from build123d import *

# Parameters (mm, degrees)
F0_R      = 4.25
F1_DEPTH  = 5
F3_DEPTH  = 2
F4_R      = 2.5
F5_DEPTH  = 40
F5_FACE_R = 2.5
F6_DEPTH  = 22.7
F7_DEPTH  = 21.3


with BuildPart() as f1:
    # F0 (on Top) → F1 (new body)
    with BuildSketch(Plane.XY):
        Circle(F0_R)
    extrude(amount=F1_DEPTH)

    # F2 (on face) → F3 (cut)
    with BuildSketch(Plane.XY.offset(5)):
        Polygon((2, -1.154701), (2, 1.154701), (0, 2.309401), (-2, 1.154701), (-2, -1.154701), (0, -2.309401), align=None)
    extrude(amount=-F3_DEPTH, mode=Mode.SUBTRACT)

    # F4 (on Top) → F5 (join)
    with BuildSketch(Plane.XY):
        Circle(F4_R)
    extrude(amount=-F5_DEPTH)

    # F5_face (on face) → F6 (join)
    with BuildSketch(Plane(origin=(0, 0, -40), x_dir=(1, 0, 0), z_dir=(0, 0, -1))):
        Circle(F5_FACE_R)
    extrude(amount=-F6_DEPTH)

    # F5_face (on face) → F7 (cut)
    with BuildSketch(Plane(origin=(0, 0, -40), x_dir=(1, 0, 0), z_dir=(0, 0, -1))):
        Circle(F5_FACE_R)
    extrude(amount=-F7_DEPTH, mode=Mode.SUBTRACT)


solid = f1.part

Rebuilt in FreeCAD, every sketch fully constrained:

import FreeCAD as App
import Part
import Sketcher

V = App.Vector
Q = App.Units.Quantity


def add_polygon(sketch, points):
    """Adds a closed chain of lines whose ends are joined by coincident constraints."""
    first, n = sketch.GeometryCount, len(points)
    for a, b in zip(points, points[1:] + points[:1]):
        sketch.addGeometry(Part.LineSegment(App.Vector(*a, 0), App.Vector(*b, 0)), False)
    for i in range(n):
        sketch.addConstraint(Sketcher.Constraint("Coincident", first + i, 2, first + (i + 1) % n, 1))

doc = App.newDocument("Part")
body = doc.addObject("PartDesign::Body", "Body")

# Sketch on XY plane
sketch1 = doc.addObject("Sketcher::SketchObject", "Sketch")
body.addObject(sketch1)
sketch1.AttachmentSupport = (doc.XY_Plane, [""])
sketch1.MapMode = "FlatFace"
sketch1.addGeometry(Part.Circle(V(0, 0, 0), V(0, 0, 1), 4.2), False)
sketch1.addConstraint(Sketcher.Constraint("Coincident", 0, 3, -1, 1))
sketch1.addConstraint(Sketcher.Constraint("Diameter", 0, Q("8.5 mm")))
pad1 = doc.addObject("PartDesign::Pad", "Pad")
body.addObject(pad1)
pad1.Profile = sketch1
pad1.Length = 5

# Sketch on XY plane
sketch2 = doc.addObject("Sketcher::SketchObject", "Sketch001")
body.addObject(sketch2)
sketch2.AttachmentSupport = (doc.XY_Plane, [""])
sketch2.MapMode = "FlatFace"
sketch2.AttachmentOffset = App.Placement(V(0, 0, 5), App.Rotation())
add_polygon(sketch2, [(2, -1.2), (2, 1.2), (0, 2.3), (-2, 1.2), (-2, -1.2), (0, -2.3)])  # lines 0-5
sketch2.addConstraint(Sketcher.Constraint("Vertical", 0))
sketch2.addConstraint(Sketcher.Constraint("Vertical", 3))
sketch2.addConstraint(Sketcher.Constraint("Symmetric", 0, 2, 3, 2, -1, 1))
sketch2.addConstraint(Sketcher.Constraint("Symmetric", 1, 2, 4, 2, -1, 1))
sketch2.addConstraint(Sketcher.Constraint("PointOnObject", 1, 2, -2))
sketch2.addConstraint(Sketcher.Constraint("Parallel", 2, 5))
sketch2.addConstraint(Sketcher.Constraint("Horizontal", 0, 2, 2, 2))
sketch2.addConstraint(Sketcher.Constraint("Angle", 1, Q("150.000012 deg")))
sketch2.addConstraint(Sketcher.Constraint("DistanceX", -1, 1, 0, 2, Q("2 mm")))
sketch2.addConstraint(Sketcher.Constraint("DistanceY", 0, 1, 0, 2, Q("2.309402 mm")))
pocket1 = doc.addObject("PartDesign::Pocket", "Pocket")
body.addObject(pocket1)
pocket1.Profile = sketch2
pocket1.Length = 2

# Sketch on XY plane
sketch3 = doc.addObject("Sketcher::SketchObject", "Sketch002")
body.addObject(sketch3)
sketch3.AttachmentSupport = (doc.XY_Plane, [""])
sketch3.MapMode = "FlatFace"
sketch3.addGeometry(Part.Circle(V(0, 0, 0), V(0, 0, 1), 2.5), False)
sketch3.addConstraint(Sketcher.Constraint("Coincident", 0, 3, -1, 1))
sketch3.addConstraint(Sketcher.Constraint("Diameter", 0, Q("5 mm")))
pad2 = doc.addObject("PartDesign::Pad", "Pad001")
body.addObject(pad2)
pad2.Profile = sketch3
pad2.Length = 40
pad2.Reversed = True

# Sketch on XY plane
sketch4 = doc.addObject("Sketcher::SketchObject", "Sketch003")
body.addObject(sketch4)
sketch4.AttachmentSupport = (doc.XY_Plane, [""])
sketch4.MapMode = "FlatFace"
sketch4.AttachmentOffset = App.Placement(V(0, 0, -40), App.Rotation())
sketch4.addGeometry(Part.Circle(V(0, 0, 0), V(0, 0, 1), 2.5), False)
sketch4.addConstraint(Sketcher.Constraint("Coincident", 0, 3, -1, 1))
sketch4.addConstraint(Sketcher.Constraint("Diameter", 0, Q("5 mm")))
pad3 = doc.addObject("PartDesign::Pad", "Pad002")
body.addObject(pad3)
pad3.Profile = sketch4
pad3.Length = 22.7

# Sketch on XY plane
sketch5 = doc.addObject("Sketcher::SketchObject", "Sketch004")
body.addObject(sketch5)
sketch5.AttachmentSupport = (doc.XY_Plane, [""])
sketch5.MapMode = "FlatFace"
sketch5.AttachmentOffset = App.Placement(V(0, 0, -40), App.Rotation())
sketch5.addGeometry(Part.Circle(V(0, 0, 0), V(0, 0, 1), 2.5), False)
sketch5.addConstraint(Sketcher.Constraint("Coincident", 0, 3, -1, 1))
sketch5.addConstraint(Sketcher.Constraint("Diameter", 0, Q("5 mm")))
pocket2 = doc.addObject("PartDesign::Pocket", "Pocket001")
body.addObject(pocket2)
pocket2.Profile = sketch5
pocket2.Length = 21.3
pocket2.Reversed = True

doc.recompute()
